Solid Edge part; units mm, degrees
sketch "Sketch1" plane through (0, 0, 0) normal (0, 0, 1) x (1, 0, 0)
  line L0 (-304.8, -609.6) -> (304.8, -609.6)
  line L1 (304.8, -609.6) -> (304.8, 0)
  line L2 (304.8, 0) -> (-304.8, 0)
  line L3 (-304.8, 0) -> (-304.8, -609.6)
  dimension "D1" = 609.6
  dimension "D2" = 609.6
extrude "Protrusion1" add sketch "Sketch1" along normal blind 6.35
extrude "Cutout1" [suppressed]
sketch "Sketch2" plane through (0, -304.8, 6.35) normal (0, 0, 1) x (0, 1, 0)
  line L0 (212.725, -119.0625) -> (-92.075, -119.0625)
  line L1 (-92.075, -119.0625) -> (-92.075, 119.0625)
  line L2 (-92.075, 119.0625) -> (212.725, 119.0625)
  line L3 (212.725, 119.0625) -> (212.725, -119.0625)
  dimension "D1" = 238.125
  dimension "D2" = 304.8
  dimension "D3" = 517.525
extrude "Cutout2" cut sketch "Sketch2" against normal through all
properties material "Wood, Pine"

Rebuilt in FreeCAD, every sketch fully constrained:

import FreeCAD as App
import Part
import Sketcher
from FreeCAD import Vector
Q = App.Units.Quantity


def add_polygon(sketch, points):
    """Adds a closed chain of lines whose ends are joined by coincident constraints."""
    first, n = sketch.GeometryCount, len(points)
    for a, b in zip(points, points[1:] + points[:1]):
        sketch.addGeometry(Part.LineSegment(App.Vector(*a, 0), App.Vector(*b, 0)), False)
    for i in range(n):
        sketch.addConstraint(Sketcher.Constraint("Coincident", first + i, 2, first + (i + 1) % n, 1))

doc = App.newDocument("Part")
body = doc.addObject("PartDesign::Body", "Body")

# Sketch on XY plane
sketch1 = body.newObject("Sketcher::SketchObject", "Sketch")
sketch1.AttachmentSupport = (doc.getObject("XY_Plane"), [""])
sketch1.MapMode = "FlatFace"
add_polygon(sketch1, [(-305, 0), (-305, -610), (305, -610), (305, 0)])  # lines 0-3
sketch1.addConstraint([
    Sketcher.Constraint("Vertical", 0),
    Sketcher.Constraint("Horizontal", 1),
    Sketcher.Constraint("Vertical", 2),
    Sketcher.Constraint("Horizontal", 3),
    Sketcher.Constraint("Symmetric", 2, 2, 3, 2, -1, 1),
    Sketcher.Constraint("Equal", 3, 0),
    Sketcher.Constraint("DistanceX", 0, 2, -1, 1, Q("12 in")),
])
pad1 = body.newObject("PartDesign::Pad", "Pad")
pad1.Profile = sketch1
pad1.Length = Q("0.25 in")

# Sketch on XY plane
sketch2 = body.newObject("Sketcher::SketchObject", "Sketch001")
sketch2.AttachmentSupport = (doc.getObject("XY_Plane"), [""])
sketch2.MapMode = "FlatFace"
sketch2.AttachmentOffset = App.Placement(Vector(0, 0, 0.25 * 25.4), App.Rotation())
add_polygon(sketch2, [(119, -397), (119, -92), (-119, -92), (-119, -397)])  # lines 0-3
sketch2.addConstraint([
    Sketcher.Constraint("Vertical", 0),
    Sketcher.Constraint("Horizontal", 1),
    Sketcher.Constraint("Vertical", 2),
    Sketcher.Constraint("Horizontal", 3),
    Sketcher.Constraint("DistanceY", 0, 1, 0, 2, Q("12 in")),
    Sketcher.Constraint("DistanceY", 0, 2, -1, 1, Q("3.625 in")),
    Sketcher.Constraint("DistanceX", 1, 2, 1, 1, Q("9.375 in")),
    Sketcher.Constraint("DistanceX", -1, 1, 0, 2, Q("4.6875 in")),
])
pocket1 = body.newObject("PartDesign::Pocket", "Pocket")
pocket1.Profile = sketch2
pocket1.Type = "ThroughAll"

doc.recompute()
